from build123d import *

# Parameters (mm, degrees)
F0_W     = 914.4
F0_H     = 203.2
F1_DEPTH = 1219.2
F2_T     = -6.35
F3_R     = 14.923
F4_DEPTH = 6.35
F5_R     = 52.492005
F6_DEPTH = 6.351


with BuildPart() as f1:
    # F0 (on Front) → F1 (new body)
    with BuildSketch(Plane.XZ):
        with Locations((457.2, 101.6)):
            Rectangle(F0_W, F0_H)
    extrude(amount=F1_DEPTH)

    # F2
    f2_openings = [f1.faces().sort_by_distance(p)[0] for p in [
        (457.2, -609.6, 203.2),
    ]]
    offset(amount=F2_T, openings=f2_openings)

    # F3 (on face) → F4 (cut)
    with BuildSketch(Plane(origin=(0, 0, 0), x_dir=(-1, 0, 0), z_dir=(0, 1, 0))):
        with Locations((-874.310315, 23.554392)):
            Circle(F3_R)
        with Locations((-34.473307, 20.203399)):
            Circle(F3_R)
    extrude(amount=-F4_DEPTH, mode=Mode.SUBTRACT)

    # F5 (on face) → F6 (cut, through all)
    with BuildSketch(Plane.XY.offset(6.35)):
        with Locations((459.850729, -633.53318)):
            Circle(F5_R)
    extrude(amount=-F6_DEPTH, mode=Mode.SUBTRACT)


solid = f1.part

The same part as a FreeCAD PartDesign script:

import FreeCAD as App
import Part
import Sketcher
Q = App.Units.Quantity


def faces_at(feature, points):
    """Names of the faces that lie closest to the given points."""
    faces = feature.Shape.Faces
    near = lambda p: min(range(len(faces)), key=lambda i: faces[i].distToShape(Part.Vertex(*p))[0])
    return sorted({f"Face{near(p) + 1}" for p in points})


def add_polygon(sketch, points):
    """Adds a closed chain of lines whose ends are joined by coincident constraints."""
    first, n = sketch.GeometryCount, len(points)
    for a, b in zip(points, points[1:] + points[:1]):
        sketch.addGeometry(Part.LineSegment(App.Vector(*a, 0), App.Vector(*b, 0)), False)
    for i in range(n):
        sketch.addConstraint(Sketcher.Constraint("Coincident", first + i, 2, first + (i + 1) % n, 1))

doc = App.newDocument("Part")
body = doc.addObject("PartDesign::Body", "Body")

sketch1 = body.newObject("Sketcher::SketchObject", "Sketch")
sketch1.AttachmentSupport = (doc.getObject("XZ_Plane"), [""])
sketch1.MapMode = "FlatFace"
add_polygon(sketch1, [(0, 203), (0, 0), (914, 0), (914, 203)])
sketch1.addConstraint([
    Sketcher.Constraint("Vertical", 0),
    Sketcher.Constraint("Horizontal", 1),
    Sketcher.Constraint("Vertical", 2),
    Sketcher.Constraint("Horizontal", 3),
    Sketcher.Constraint("Coincident", 0, 2, -1, 1),
    Sketcher.Constraint("DistanceX", 1, 1, 1, 2, Q("36 in")),
    Sketcher.Constraint("DistanceY", 0, 2, 0, 1, Q("8 in")),
])
pad1 = body.newObject("PartDesign::Pad", "Pad")
pad1.Profile = sketch1
pad1.Length = Q("48 in")
doc.recompute()

thickness = body.newObject("PartDesign::Thickness", "Thickness")
thickness.Base = (pad1, faces_at(pad1, [(457.2, -609.6, 203.2)]))
thickness.Value = Q("0.25 in")
thickness.Reversed = True
thickness.Join = "Arc"

sketch2 = body.newObject("Sketcher::SketchObject", "Sketch001")
sketch2.AttachmentSupport = (doc.getObject("XZ_Plane"), [""])
sketch2.MapMode = "FlatFace"
sketch2.addGeometry([
    Part.Circle(App.Vector(874, 24, 0), App.Vector(0, 0, 1), 15),
    Part.Circle(App.Vector(34, 20, 0), App.Vector(0, 0, 1), 15),
], False)
sketch2.addConstraint([
    Sketcher.Constraint("Equal", 0, 1),
    Sketcher.Constraint("Diameter", 0, 29.846),
    Sketcher.Constraint("DistanceY", -1, 1, 1, 3, 20.203399),
    Sketcher.Constraint("DistanceY", -1, 1, 0, 3, 23.554392),
    Sketcher.Constraint("DistanceX", 1, 3, 0, 3, 839.837008),
    Sketcher.Constraint("DistanceX", -1, 1, 0, 3, 874.310315),
])
pocket1 = body.newObject("PartDesign::Pocket", "Pocket")
pocket1.Profile = sketch2
pocket1.Length = Q("0.25 in")
pocket1.Reversed = True

sketch3 = body.newObject("Sketcher::SketchObject", "Sketch002")
sketch3.AttachmentSupport = (doc.getObject("XY_Plane"), [""])
sketch3.MapMode = "FlatFace"
sketch3.AttachmentOffset = App.Placement(App.Vector(0, 0, 0.25 * 25.4), App.Rotation())
sketch3.addGeometry(Part.Circle(App.Vector(460, -634, 0), App.Vector(0, 0, 1), 52), False)
sketch3.addConstraint([
    Sketcher.Constraint("Diameter", 0, 104.98401),
    Sketcher.Constraint("DistanceX", -1, 1, 0, 3, 459.850729),
    Sketcher.Constraint("DistanceY", 0, 3, -1, 1, 633.53318),
])
pocket2 = body.newObject("PartDesign::Pocket", "Pocket001")
pocket2.Profile = sketch3
pocket2.Type = "ThroughAll"

doc.recompute()
